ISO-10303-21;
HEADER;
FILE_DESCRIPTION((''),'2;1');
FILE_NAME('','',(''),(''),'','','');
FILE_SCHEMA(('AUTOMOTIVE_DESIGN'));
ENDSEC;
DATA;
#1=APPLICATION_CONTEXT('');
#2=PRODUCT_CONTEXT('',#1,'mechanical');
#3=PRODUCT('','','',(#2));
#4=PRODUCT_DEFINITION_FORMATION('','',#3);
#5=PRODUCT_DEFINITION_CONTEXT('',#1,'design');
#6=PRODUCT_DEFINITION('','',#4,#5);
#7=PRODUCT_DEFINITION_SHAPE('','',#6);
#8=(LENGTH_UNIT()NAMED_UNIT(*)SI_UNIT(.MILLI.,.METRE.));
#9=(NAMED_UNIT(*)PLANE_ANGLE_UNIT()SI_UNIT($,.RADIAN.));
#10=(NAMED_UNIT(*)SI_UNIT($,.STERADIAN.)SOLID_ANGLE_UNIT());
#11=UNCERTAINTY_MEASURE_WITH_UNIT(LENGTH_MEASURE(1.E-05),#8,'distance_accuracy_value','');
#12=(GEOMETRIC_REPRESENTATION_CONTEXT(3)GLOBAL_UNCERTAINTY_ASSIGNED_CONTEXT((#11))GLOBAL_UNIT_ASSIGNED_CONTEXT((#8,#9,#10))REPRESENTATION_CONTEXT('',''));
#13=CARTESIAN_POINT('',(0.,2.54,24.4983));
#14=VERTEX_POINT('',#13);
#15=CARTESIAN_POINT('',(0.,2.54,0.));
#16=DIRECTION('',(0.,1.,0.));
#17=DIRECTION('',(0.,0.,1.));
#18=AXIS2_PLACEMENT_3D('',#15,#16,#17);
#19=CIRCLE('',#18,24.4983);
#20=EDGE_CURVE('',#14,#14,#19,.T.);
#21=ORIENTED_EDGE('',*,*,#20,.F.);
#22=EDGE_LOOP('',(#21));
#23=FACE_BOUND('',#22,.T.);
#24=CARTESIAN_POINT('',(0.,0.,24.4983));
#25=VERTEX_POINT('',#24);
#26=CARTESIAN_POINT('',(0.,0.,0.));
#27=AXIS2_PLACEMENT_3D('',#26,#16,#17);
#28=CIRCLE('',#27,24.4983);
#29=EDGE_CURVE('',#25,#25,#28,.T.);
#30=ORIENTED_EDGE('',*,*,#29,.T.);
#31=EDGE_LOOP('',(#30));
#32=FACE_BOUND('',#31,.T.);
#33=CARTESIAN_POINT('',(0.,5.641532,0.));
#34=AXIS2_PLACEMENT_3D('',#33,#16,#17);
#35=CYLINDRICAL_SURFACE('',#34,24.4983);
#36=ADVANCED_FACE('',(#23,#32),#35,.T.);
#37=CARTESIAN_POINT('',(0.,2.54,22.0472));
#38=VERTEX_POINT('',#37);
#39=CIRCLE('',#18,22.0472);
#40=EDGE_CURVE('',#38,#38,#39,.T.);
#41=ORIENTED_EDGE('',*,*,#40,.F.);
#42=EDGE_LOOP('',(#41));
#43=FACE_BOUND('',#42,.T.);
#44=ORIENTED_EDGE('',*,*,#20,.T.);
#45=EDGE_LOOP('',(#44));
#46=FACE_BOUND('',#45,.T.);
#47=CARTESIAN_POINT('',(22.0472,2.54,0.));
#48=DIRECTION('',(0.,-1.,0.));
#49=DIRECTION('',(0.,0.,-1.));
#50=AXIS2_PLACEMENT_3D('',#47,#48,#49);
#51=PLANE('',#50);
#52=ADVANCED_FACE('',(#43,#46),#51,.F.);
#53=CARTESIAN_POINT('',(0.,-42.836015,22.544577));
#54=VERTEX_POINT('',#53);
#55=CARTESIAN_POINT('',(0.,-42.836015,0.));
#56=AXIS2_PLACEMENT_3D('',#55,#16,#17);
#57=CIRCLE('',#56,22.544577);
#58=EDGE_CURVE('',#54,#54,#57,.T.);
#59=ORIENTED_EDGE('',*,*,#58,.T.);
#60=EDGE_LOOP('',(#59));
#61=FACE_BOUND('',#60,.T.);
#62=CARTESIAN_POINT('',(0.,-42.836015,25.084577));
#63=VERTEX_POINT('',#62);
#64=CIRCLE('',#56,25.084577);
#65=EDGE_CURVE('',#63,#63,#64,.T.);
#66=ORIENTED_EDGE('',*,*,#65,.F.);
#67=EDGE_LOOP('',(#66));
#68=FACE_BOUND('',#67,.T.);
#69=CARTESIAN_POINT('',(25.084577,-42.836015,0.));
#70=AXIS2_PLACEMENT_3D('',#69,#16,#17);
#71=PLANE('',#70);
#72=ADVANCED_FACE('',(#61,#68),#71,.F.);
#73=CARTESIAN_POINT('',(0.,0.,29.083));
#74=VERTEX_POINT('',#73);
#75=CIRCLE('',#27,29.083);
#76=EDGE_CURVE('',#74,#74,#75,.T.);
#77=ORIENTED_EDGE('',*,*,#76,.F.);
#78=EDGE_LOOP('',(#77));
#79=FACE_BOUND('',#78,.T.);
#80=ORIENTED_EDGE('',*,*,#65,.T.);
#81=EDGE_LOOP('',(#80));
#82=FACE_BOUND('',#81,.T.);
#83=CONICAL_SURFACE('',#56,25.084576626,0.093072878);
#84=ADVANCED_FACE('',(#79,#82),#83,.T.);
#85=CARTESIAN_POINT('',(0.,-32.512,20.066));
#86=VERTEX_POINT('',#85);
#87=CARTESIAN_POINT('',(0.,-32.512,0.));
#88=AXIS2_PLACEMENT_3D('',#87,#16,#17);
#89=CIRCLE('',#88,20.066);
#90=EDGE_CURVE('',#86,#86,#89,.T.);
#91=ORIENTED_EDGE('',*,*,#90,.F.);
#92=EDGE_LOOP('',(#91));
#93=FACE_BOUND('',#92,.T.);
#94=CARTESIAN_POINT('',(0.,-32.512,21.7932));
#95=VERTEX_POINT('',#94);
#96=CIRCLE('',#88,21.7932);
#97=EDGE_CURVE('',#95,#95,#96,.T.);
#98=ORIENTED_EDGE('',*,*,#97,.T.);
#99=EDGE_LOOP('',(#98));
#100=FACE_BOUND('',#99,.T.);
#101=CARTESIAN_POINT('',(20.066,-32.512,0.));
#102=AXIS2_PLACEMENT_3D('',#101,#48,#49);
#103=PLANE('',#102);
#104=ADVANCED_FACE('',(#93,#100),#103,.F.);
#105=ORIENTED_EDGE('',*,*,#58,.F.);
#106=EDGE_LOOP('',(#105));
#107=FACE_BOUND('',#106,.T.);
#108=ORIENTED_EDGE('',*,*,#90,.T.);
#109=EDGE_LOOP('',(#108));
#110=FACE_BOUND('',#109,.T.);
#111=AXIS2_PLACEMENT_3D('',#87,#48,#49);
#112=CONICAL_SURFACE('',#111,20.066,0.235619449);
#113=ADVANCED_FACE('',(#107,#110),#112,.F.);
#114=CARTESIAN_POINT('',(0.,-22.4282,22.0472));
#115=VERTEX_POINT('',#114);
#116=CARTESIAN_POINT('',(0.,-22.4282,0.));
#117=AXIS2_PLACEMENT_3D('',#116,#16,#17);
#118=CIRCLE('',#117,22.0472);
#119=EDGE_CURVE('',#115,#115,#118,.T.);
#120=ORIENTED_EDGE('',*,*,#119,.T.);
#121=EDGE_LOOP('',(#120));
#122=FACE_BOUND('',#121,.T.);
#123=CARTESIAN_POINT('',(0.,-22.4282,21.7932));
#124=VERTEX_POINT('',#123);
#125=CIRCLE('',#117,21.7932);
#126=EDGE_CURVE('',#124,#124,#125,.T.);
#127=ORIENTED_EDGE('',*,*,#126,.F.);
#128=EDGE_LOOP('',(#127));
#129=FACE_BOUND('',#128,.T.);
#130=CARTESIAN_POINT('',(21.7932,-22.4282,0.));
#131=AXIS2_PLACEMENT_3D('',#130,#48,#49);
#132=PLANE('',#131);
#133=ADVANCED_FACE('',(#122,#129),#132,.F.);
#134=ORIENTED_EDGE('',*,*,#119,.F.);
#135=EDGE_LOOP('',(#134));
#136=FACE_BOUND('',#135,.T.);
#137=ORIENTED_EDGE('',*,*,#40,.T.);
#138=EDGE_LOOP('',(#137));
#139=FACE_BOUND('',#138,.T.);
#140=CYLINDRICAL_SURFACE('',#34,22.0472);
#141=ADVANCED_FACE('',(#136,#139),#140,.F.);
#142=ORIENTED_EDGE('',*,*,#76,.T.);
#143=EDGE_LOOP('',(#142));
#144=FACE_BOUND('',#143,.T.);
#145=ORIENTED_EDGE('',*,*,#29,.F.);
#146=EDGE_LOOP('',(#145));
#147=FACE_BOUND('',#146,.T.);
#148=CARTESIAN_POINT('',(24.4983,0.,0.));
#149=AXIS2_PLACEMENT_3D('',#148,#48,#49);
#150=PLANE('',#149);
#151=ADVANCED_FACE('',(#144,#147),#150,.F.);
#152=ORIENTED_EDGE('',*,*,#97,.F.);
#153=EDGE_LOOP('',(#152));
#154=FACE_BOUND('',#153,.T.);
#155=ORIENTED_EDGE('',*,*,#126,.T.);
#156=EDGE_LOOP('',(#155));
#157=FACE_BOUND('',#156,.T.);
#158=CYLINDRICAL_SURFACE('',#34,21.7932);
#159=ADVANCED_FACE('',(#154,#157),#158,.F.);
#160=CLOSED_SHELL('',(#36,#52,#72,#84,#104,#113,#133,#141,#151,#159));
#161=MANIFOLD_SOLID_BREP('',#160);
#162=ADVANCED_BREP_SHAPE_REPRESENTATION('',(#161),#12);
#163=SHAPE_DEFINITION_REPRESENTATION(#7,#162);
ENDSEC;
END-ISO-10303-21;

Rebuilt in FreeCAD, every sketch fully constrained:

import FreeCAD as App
import Part
import Sketcher

V = App.Vector
Q = App.Units.Quantity


def add_polygon(sketch, points):
    """Adds a closed chain of lines whose ends are joined by coincident constraints."""
    first, n = sketch.GeometryCount, len(points)
    for a, b in zip(points, points[1:] + points[:1]):
        sketch.addGeometry(Part.LineSegment(App.Vector(*a, 0), App.Vector(*b, 0)), False)
    for i in range(n):
        sketch.addConstraint(Sketcher.Constraint("Coincident", first + i, 2, first + (i + 1) % n, 1))

doc = App.newDocument("Part")
params = doc.addObject("Spreadsheet::Sheet", "Params")
for row, (alias, value) in enumerate([
    ("sketch1_width", "0.1 in"),
    ("sketch1_width2", "0.01 in"),
    ("sketch1_width3", "0.068 in"),
    ("sketch1_height", "0.983 in"),
    ("sketch1_height2", "0.397 in"),
    ("revolution_angle", "360 deg"),
], start=1):
    params.set(f"A{row}", alias)
    params.set(f"B{row}", "=" + value)
    params.setAlias(f"B{row}", alias)

body = doc.addObject("PartDesign::Body", "Body")

# Sketch on XY plane
sketch1 = body.newObject("Sketcher::SketchObject", "Sketch")
sketch1.AttachmentSupport = (doc.getObject("XY_Plane"), [""])
sketch1.MapMode = "FlatFace"
add_polygon(sketch1, [(20.07, -32.51), (22.54, -42.84), (25.08, -42.84), (29.08, 0), (24.5, 0), (24.5, 2.54), (22.05, 2.54), (22.05, -22.43), (21.79, -22.43), (21.79, -32.51)])  # lines 0-9
sketch1.addConstraint([
    Sketcher.Constraint("Horizontal", 1),
    Sketcher.Constraint("Horizontal", 3),
    Sketcher.Constraint("Vertical", 4),
    Sketcher.Constraint("Horizontal", 5),
    Sketcher.Constraint("Vertical", 6),
    Sketcher.Constraint("Horizontal", 7),
    Sketcher.Constraint("Vertical", 8),
    Sketcher.Constraint("Horizontal", 9),
    Sketcher.Constraint("PointOnObject", 2, 2, -1),
    Sketcher.Constraint("Equal", 1, 4),
    Sketcher.Constraint("DistanceX", 1, 1, 1, 2, Q("0.1 in")),
    Sketcher.Constraint("DistanceX", 7, 2, 7, 1, Q("0.01 in")),
    Sketcher.Constraint("Angle", 0, Q("-76.5 deg")),
    Sketcher.Constraint("DistanceX", 9, 2, 9, 1, Q("0.068 in")),
    Sketcher.Constraint("DistanceY", 6, 2, 6, 1, Q("0.983 in")),
    Sketcher.Constraint("DistanceY", 8, 2, 8, 1, Q("0.397 in")),
    Sketcher.Constraint("DistanceX", -1, 1, 9, 2, Q("0.79 in")),
    Sketcher.Constraint("DistanceX", 3, 2, 3, 1, Q("0.1805 in")),
    Sketcher.Constraint("DistanceX", 5, 2, 5, 1, Q("0.0965 in")),
    Sketcher.Constraint("Distance", 2, 43.022221),
])
sketch1.setExpression("Constraints[20]", "Params.sketch1_width")
sketch1.setExpression("Constraints[21]", "Params.sketch1_width2")
sketch1.setExpression("Constraints[23]", "Params.sketch1_width3")
sketch1.setExpression("Constraints[24]", "Params.sketch1_height")
sketch1.setExpression("Constraints[25]", "Params.sketch1_height2")
revolution = body.newObject("PartDesign::Revolution", "Revolution")
revolution.Profile = sketch1
revolution.ReferenceAxis = (sketch1, ["V_Axis"])
revolution.setExpression("Angle", "Params.revolution_angle")

doc.recompute()
